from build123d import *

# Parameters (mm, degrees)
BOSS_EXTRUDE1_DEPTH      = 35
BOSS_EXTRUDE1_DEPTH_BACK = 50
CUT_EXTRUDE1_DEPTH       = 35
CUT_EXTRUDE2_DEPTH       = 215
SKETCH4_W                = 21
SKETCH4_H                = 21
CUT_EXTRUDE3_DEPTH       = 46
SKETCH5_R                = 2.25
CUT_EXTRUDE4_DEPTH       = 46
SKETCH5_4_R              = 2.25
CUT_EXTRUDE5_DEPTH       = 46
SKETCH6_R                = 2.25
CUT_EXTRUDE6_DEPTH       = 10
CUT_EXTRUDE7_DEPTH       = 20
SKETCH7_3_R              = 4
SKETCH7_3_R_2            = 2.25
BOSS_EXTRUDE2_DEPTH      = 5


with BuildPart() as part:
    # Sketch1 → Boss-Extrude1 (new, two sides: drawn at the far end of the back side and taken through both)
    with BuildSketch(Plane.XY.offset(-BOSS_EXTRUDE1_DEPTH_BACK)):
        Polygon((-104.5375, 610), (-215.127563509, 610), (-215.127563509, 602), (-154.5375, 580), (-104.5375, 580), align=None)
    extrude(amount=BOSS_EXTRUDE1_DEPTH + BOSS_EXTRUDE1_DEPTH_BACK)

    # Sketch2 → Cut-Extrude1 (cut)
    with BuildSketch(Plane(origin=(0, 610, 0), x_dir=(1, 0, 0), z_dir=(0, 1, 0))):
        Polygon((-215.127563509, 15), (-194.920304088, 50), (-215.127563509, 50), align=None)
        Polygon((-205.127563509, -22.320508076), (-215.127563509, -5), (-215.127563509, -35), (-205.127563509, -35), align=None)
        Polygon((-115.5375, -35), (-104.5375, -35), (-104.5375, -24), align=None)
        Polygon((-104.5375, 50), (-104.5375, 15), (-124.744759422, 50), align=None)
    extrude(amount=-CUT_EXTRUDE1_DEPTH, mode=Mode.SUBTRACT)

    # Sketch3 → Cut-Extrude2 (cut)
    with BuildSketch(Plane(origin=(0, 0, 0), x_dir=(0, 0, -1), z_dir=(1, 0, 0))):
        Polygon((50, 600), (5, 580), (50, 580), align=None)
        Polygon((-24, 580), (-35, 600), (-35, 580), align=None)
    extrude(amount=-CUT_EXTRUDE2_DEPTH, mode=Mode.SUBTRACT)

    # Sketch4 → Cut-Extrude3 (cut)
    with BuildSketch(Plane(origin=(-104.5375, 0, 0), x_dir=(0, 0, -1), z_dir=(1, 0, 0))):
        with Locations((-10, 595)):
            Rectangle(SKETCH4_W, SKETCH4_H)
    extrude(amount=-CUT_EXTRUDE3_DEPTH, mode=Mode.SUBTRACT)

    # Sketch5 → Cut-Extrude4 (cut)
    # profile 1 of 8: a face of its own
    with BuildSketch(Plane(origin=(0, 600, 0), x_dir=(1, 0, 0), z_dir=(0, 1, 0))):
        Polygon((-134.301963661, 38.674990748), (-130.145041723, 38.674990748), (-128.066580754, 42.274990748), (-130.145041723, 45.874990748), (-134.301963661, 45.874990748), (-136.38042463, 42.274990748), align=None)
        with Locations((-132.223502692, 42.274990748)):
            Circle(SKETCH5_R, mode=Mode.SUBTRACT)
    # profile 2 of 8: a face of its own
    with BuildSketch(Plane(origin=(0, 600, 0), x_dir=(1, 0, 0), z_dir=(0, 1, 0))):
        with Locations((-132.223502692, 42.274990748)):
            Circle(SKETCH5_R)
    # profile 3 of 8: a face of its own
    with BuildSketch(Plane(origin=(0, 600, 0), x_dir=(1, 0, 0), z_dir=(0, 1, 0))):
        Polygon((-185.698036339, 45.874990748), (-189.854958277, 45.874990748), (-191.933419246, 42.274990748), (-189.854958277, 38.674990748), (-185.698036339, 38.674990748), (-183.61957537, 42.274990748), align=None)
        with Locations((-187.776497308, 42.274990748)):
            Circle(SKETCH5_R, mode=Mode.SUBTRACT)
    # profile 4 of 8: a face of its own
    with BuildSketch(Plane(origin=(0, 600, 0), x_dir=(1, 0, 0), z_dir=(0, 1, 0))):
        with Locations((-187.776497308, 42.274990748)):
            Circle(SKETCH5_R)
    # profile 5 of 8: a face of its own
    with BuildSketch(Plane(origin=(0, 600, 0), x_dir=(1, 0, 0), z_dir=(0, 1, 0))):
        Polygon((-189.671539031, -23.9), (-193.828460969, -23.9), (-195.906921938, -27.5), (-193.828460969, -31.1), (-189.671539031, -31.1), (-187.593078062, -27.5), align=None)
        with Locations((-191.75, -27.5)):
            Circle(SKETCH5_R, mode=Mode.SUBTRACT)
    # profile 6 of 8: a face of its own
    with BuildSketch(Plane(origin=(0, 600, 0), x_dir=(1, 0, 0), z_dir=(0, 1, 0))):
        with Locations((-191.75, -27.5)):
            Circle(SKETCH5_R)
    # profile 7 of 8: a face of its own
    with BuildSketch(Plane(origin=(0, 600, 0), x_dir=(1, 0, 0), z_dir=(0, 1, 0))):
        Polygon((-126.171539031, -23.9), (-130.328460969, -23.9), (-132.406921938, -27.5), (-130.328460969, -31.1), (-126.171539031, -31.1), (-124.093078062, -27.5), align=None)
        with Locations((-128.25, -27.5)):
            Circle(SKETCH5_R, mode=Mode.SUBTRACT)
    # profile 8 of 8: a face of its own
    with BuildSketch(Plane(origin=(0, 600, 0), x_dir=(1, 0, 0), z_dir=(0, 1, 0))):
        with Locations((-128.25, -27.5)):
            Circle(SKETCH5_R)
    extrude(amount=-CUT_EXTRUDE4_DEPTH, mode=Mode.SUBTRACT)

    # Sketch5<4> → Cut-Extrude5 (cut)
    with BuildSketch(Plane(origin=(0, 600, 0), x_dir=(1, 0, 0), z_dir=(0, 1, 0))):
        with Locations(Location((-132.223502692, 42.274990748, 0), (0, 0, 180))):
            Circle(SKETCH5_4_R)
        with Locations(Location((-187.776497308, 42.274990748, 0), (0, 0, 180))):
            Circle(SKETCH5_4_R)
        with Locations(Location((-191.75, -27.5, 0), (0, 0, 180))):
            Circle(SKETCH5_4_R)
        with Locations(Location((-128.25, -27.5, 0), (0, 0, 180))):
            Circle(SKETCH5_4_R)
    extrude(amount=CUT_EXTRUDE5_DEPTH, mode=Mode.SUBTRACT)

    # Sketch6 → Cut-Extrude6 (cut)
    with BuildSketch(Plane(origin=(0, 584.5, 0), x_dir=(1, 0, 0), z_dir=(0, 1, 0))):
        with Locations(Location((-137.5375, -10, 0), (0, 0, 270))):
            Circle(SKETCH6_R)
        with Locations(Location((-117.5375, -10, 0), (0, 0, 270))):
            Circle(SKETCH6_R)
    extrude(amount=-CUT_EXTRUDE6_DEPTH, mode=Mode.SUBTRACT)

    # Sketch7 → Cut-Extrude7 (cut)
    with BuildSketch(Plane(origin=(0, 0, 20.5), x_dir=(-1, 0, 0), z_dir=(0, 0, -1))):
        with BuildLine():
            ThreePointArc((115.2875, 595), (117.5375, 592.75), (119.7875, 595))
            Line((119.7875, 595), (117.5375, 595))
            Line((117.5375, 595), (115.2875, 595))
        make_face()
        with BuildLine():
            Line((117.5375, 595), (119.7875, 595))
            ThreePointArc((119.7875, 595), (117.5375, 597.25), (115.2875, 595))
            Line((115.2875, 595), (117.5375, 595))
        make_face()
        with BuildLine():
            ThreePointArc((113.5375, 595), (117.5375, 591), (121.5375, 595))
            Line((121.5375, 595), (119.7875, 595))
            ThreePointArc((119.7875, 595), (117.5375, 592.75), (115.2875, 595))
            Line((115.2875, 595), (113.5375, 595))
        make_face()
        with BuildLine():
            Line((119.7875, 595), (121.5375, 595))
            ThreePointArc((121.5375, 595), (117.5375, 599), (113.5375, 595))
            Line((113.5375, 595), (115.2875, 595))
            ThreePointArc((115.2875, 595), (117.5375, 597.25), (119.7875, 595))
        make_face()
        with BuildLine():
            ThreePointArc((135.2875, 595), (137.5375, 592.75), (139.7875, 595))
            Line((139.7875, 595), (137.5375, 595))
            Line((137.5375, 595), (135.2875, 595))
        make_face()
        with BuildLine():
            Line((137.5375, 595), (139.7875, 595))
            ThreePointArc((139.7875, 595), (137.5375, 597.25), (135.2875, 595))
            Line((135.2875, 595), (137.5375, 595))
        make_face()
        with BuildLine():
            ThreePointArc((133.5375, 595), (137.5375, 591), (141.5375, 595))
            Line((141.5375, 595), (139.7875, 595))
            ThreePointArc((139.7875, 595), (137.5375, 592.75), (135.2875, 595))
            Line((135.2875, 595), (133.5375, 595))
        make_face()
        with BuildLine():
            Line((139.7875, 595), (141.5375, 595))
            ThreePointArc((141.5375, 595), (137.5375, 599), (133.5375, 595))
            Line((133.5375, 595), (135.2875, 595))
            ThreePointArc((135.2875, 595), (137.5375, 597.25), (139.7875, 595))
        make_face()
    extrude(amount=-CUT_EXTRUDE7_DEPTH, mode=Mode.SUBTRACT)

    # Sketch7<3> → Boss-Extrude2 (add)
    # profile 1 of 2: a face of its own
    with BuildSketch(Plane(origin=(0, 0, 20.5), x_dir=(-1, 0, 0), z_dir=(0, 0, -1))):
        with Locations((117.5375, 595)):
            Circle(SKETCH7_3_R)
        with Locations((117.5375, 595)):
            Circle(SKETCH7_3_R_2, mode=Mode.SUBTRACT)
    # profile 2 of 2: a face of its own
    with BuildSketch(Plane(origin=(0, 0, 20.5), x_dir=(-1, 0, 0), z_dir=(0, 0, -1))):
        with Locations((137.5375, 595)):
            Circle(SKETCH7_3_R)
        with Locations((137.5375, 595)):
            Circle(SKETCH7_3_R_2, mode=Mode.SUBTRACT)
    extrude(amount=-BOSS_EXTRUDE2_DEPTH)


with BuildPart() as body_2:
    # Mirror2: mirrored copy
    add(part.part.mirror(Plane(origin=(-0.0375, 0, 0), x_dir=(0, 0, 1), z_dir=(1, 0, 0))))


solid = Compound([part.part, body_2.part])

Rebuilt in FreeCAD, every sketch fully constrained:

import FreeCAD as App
import Part
import Sketcher

V = App.Vector
Q = App.Units.Quantity


def add_polygon(sketch, points):
    """Adds a closed chain of lines whose ends are joined by coincident constraints."""
    first, n = sketch.GeometryCount, len(points)
    for a, b in zip(points, points[1:] + points[:1]):
        sketch.addGeometry(Part.LineSegment(App.Vector(*a, 0), App.Vector(*b, 0)), False)
    for i in range(n):
        sketch.addConstraint(Sketcher.Constraint("Coincident", first + i, 2, first + (i + 1) % n, 1))

doc = App.newDocument("Part")
body = doc.addObject("PartDesign::Body", "Body")

# Sketch on XY plane
sketch1 = body.newObject("Sketcher::SketchObject", "Sketch")
sketch1.AttachmentSupport = (doc.getObject("XY_Plane"), [""])
sketch1.MapMode = "FlatFace"
add_polygon(sketch1, [(-105, 610), (-215, 610), (-215, 602), (-155, 580), (-105, 580)])  # lines 0-4
sketch1.addConstraint(Sketcher.Constraint("Horizontal", 0))
sketch1.addConstraint(Sketcher.Constraint("Vertical", 1))
sketch1.addConstraint(Sketcher.Constraint("Horizontal", 3))
sketch1.addConstraint(Sketcher.Constraint("Vertical", 4))
sketch1.addConstraint(Sketcher.Constraint("DistanceX", 3, 1, 3, 2, Q("50 mm")))
sketch1.addConstraint(Sketcher.Constraint("DistanceY", 1, 2, 1, 1, Q("8 mm")))
sketch1.addConstraint(Sketcher.Constraint("DistanceY", 4, 1, 4, 2, Q("30 mm")))
sketch1.addConstraint(Sketcher.Constraint("DistanceY", -1, 1, 0, 2, Q("610 mm")))
sketch1.addConstraint(Sketcher.Constraint("DistanceX", 2, 2, -1, 1, Q("154.5375 mm")))
sketch1.addConstraint(Sketcher.Constraint("DistanceX", 0, 2, 0, 1, Q("110.590064 mm")))
pad1 = body.newObject("PartDesign::Pad", "Pad")
pad1.Profile = sketch1
pad1.Type = "TwoLengths"
pad1.Length = 35
pad1.Length2 = 50

# Sketch on XZ plane
sketch2 = body.newObject("Sketcher::SketchObject", "Sketch001")
sketch2.AttachmentSupport = (doc.getObject("XZ_Plane"), [""])
sketch2.MapMode = "FlatFace"
sketch2.AttachmentOffset = App.Placement(V(0, 0, -610), App.Rotation())
add_polygon(sketch2, [(-215, -15), (-195, -50), (-215, -50)])  # lines 0-2
add_polygon(sketch2, [(-205, 22), (-215, 5), (-215, 35), (-205, 35)])  # lines 3-6
add_polygon(sketch2, [(-116, 35), (-105, 35), (-105, 24)])  # lines 7-9
add_polygon(sketch2, [(-105, -15), (-105, -50), (-125, -50)])  # lines 10-12
sketch2.addConstraint(Sketcher.Constraint("Horizontal", 1))
sketch2.addConstraint(Sketcher.Constraint("Vertical", 2))
sketch2.addConstraint(Sketcher.Constraint("Vertical", 4))
sketch2.addConstraint(Sketcher.Constraint("Horizontal", 5))
sketch2.addConstraint(Sketcher.Constraint("Vertical", 6))
sketch2.addConstraint(Sketcher.Constraint("Horizontal", 7))
sketch2.addConstraint(Sketcher.Constraint("Vertical", 8))
sketch2.addConstraint(Sketcher.Constraint("Vertical", 10))
sketch2.addConstraint(Sketcher.Constraint("Horizontal", 11))
sketch2.addConstraint(Sketcher.Constraint("Parallel", 3, 12))
sketch2.addConstraint(Sketcher.Constraint("Horizontal", 5, 2, 7, 2))
sketch2.addConstraint(Sketcher.Constraint("Horizontal", 1, 2, 10, 2))
sketch2.addConstraint(Sketcher.Constraint("Horizontal", 2, 2, 12, 2))
sketch2.addConstraint(Sketcher.Constraint("Vertical", 2, 2, 3, 2))
sketch2.addConstraint(Sketcher.Constraint("Vertical", 8, 2, 10, 2))
sketch2.addConstraint(Sketcher.Constraint("Equal", 1, 11))
sketch2.addConstraint(Sketcher.Constraint("Equal", 7, 8))
sketch2.addConstraint(Sketcher.Constraint("DistanceX", 5, 1, 5, 2, Q("10 mm")))
sketch2.addConstraint(Sketcher.Constraint("DistanceX", 7, 1, 7, 2, Q("11 mm")))
sketch2.addConstraint(Sketcher.Constraint("DistanceY", 2, 1, 2, 2, Q("35 mm")))
sketch2.addConstraint(Sketcher.Constraint("DistanceY", 4, 1, 4, 2, Q("30 mm")))
sketch2.addConstraint(Sketcher.Constraint("Angle", 0, Q("-60 deg")))
sketch2.addConstraint(Sketcher.Constraint("DistanceY", 0, 2, -1, 1, Q("50 mm")))
sketch2.addConstraint(Sketcher.Constraint("DistanceY", -1, 1, 3, 2, Q("5 mm")))
sketch2.addConstraint(Sketcher.Constraint("DistanceX", 7, 2, -1, 1, Q("104.5375 mm")))
sketch2.addConstraint(Sketcher.Constraint("DistanceX", 0, 2, -1, 1, Q("194.920304 mm")))
pocket1 = body.newObject("PartDesign::Pocket", "Pocket")
pocket1.Profile = sketch2
pocket1.Length = 35
pocket1.Reversed = True

# Sketch on YZ plane
sketch3 = body.newObject("Sketcher::SketchObject", "Sketch002")
sketch3.AttachmentSupport = (doc.getObject("YZ_Plane"), [""])
sketch3.MapMode = "FlatFace"
add_polygon(sketch3, [(600, -50), (580, -5), (580, -50)])  # lines 0-2
add_polygon(sketch3, [(580, 24), (600, 35), (580, 35)])  # lines 3-5
sketch3.addConstraint(Sketcher.Constraint("Vertical", 1))
sketch3.addConstraint(Sketcher.Constraint("Horizontal", 2))
sketch3.addConstraint(Sketcher.Constraint("Horizontal", 4))
sketch3.addConstraint(Sketcher.Constraint("Vertical", 5))
sketch3.addConstraint(Sketcher.Constraint("Vertical", 2, 2, 3, 2))
sketch3.addConstraint(Sketcher.Constraint("Vertical", 1, 2, 4, 2))
sketch3.addConstraint(Sketcher.Constraint("DistanceX", 2, 1, 2, 2, Q("20 mm")))
sketch3.addConstraint(Sketcher.Constraint("DistanceY", 1, 2, 1, 1, Q("45 mm")))
sketch3.addConstraint(Sketcher.Constraint("DistanceY", 5, 2, 5, 1, Q("11 mm")))
sketch3.addConstraint(Sketcher.Constraint("DistanceX", -1, 1, 0, 2, Q("580 mm")))
sketch3.addConstraint(Sketcher.Constraint("DistanceY", 0, 2, -1, 1, Q("5 mm")))
sketch3.addConstraint(Sketcher.Constraint("DistanceY", -1, 1, 3, 2, Q("35 mm")))
pocket2 = body.newObject("PartDesign::Pocket", "Pocket001")
pocket2.Profile = sketch3
pocket2.Length = 215

# Sketch on YZ plane
sketch4 = body.newObject("Sketcher::SketchObject", "Sketch003")
sketch4.AttachmentSupport = (doc.getObject("YZ_Plane"), [""])
sketch4.MapMode = "FlatFace"
sketch4.AttachmentOffset = App.Placement(V(0, 0, -104.5375), App.Rotation())
add_polygon(sketch4, [(606, 20), (584, 20), (584, 0), (606, 0)])  # lines 0-3
sketch4.addConstraint(Sketcher.Constraint("Horizontal", 0))
sketch4.addConstraint(Sketcher.Constraint("Vertical", 1))
sketch4.addConstraint(Sketcher.Constraint("Horizontal", 2))
sketch4.addConstraint(Sketcher.Constraint("Vertical", 3))
sketch4.addConstraint(Sketcher.Constraint("Equal", 2, 1))
sketch4.addConstraint(Sketcher.Constraint("DistanceX", 0, 2, 0, 1, Q("21 mm")))
sketch4.addConstraint(Sketcher.Constraint("DistanceX", -1, 1, 0, 2, Q("584.5 mm")))
sketch4.addConstraint(Sketcher.Constraint("DistanceY", -1, 1, 0, 2, Q("20.5 mm")))
pocket3 = body.newObject("PartDesign::Pocket", "Pocket002")
pocket3.Profile = sketch4
pocket3.Length = 46

# Sketch on XZ plane
sketch5 = body.newObject("Sketcher::SketchObject", "Sketch004")
sketch5.AttachmentSupport = (doc.getObject("XZ_Plane"), [""])
sketch5.MapMode = "FlatFace"
sketch5.AttachmentOffset = App.Placement(V(0, 0, -600), App.Rotation())
add_polygon(sketch5, [(-134.3, -38.7), (-130.1, -38.7), (-128.1, -42.3), (-130.1, -45.9), (-134.3, -45.9), (-136.4, -42.3)])  # lines 0-5
add_polygon(sketch5, [(-185.7, -45.9), (-189.9, -45.9), (-191.9, -42.3), (-189.9, -38.7), (-185.7, -38.7), (-183.6, -42.3)])  # lines 6-11
add_polygon(sketch5, [(-189.7, 23.9), (-193.8, 23.9), (-195.9, 27.5), (-193.8, 31.1), (-189.7, 31.1), (-187.6, 27.5)])  # lines 12-17
add_polygon(sketch5, [(-126.2, 23.9), (-130.3, 23.9), (-132.4, 27.5), (-130.3, 31.1), (-126.2, 31.1), (-124.1, 27.5)])  # lines 18-23
sketch5.addConstraint(Sketcher.Constraint("Horizontal", 0))
sketch5.addConstraint(Sketcher.Constraint("Horizontal", 3))
sketch5.addConstraint(Sketcher.Constraint("Horizontal", 6))
sketch5.addConstraint(Sketcher.Constraint("Horizontal", 9))
sketch5.addConstraint(Sketcher.Constraint("Horizontal", 12))
sketch5.addConstraint(Sketcher.Constraint("Horizontal", 15))
sketch5.addConstraint(Sketcher.Constraint("Horizontal", 18))
sketch5.addConstraint(Sketcher.Constraint("Horizontal", 21))
sketch5.addConstraint(Sketcher.Constraint("Parallel", 1, 4))
sketch5.addConstraint(Sketcher.Constraint("Parallel", 2, 5))
sketch5.addConstraint(Sketcher.Constraint("Parallel", 4, 7))
sketch5.addConstraint(Sketcher.Constraint("Parallel", 5, 8))
sketch5.addConstraint(Sketcher.Constraint("Parallel", 7, 10))
sketch5.addConstraint(Sketcher.Constraint("Parallel", 8, 11))
sketch5.addConstraint(Sketcher.Constraint("Parallel", 10, 13))
sketch5.addConstraint(Sketcher.Constraint("Parallel", 11, 14))
sketch5.addConstraint(Sketcher.Constraint("Parallel", 13, 16))
sketch5.addConstraint(Sketcher.Constraint("Parallel", 14, 17))
sketch5.addConstraint(Sketcher.Constraint("Parallel", 16, 19))
sketch5.addConstraint(Sketcher.Constraint("Parallel", 17, 20))
sketch5.addConstraint(Sketcher.Constraint("Parallel", 19, 22))
sketch5.addConstraint(Sketcher.Constraint("Parallel", 20, 23))
sketch5.addConstraint(Sketcher.Constraint("Horizontal", 1, 2, 4, 2))
sketch5.addConstraint(Sketcher.Constraint("Horizontal", 3, 2, 6, 2))
sketch5.addConstraint(Sketcher.Constraint("Horizontal", 4, 2, 7, 2))
sketch5.addConstraint(Sketcher.Constraint("Horizontal", 5, 2, 8, 2))
sketch5.addConstraint(Sketcher.Constraint("Horizontal", 7, 2, 10, 2))
sketch5.addConstraint(Sketcher.Constraint("Horizontal", 13, 2, 16, 2))
sketch5.addConstraint(Sketcher.Constraint("Horizontal", 17, 2, 18, 2))
sketch5.addConstraint(Sketcher.Constraint("Horizontal", 16, 2, 19, 2))
sketch5.addConstraint(Sketcher.Constraint("Horizontal", 15, 2, 20, 2))
sketch5.addConstraint(Sketcher.Constraint("Horizontal", 19, 2, 22, 2))
sketch5.addConstraint(Sketcher.Constraint("Vertical", 0, 2, 2, 2))
sketch5.addConstraint(Sketcher.Constraint("Vertical", 3, 2, 5, 2))
sketch5.addConstraint(Sketcher.Constraint("Vertical", 12, 2, 14, 2))
sketch5.addConstraint(Sketcher.Constraint("Equal", 3, 6))
sketch5.addConstraint(Sketcher.Constraint("Equal", 9, 12))
sketch5.addConstraint(Sketcher.Constraint("Equal", 15, 18))
sketch5.addConstraint(Sketcher.Constraint("Equal", 11, 13))
sketch5.addConstraint(Sketcher.Constraint("Angle", 1, Q("-60 deg")))
sketch5.addConstraint(Sketcher.Constraint("DistanceY", -1, 1, 12, 2, Q("23.9 mm")))
sketch5.addConstraint(Sketcher.Constraint("DistanceY", -1, 1, 13, 2, Q("27.5 mm")))
sketch5.addConstraint(Sketcher.Constraint("DistanceX", 15, 2, 21, 2, Q("63.5 mm")))
sketch5.addConstraint(Sketcher.Constraint("DistanceX", 0, 1, 0, 2, Q("4.156922 mm")))
sketch5.addConstraint(Sketcher.Constraint("DistanceX", 0, 2, -1, 1, Q("130.145042 mm")))
sketch5.addConstraint(Sketcher.Constraint("DistanceY", 0, 2, -1, 1, Q("38.674991 mm")))
sketch5.addConstraint(Sketcher.Constraint("DistanceX", 6, 2, -1, 1, Q("189.854958 mm")))
sketch5.addConstraint(Sketcher.Constraint("DistanceX", 12, 2, -1, 1, Q("193.828461 mm")))
pocket4 = body.newObject("PartDesign::Pocket", "Pocket003")
pocket4.Profile = sketch5
pocket4.Length = 46
pocket4.Reversed = True

# Sketch on XZ plane
sketch6 = body.newObject("Sketcher::SketchObject", "Sketch005")
sketch6.AttachmentSupport = (doc.getObject("XZ_Plane"), [""])
sketch6.MapMode = "FlatFace"
sketch6.AttachmentOffset = App.Placement(V(0, 0, -600), App.Rotation())
sketch6.addGeometry(Part.Circle(V(-132.2, -42.3, 0), V(0, 0, 1), 2.2), False)
sketch6.addGeometry(Part.Circle(V(-187.8, -42.3, 0), V(0, 0, 1), 2.2), False)
sketch6.addGeometry(Part.Circle(V(-191.8, 27.5, 0), V(0, 0, 1), 2.2), False)
sketch6.addGeometry(Part.Circle(V(-128.2, 27.5, 0), V(0, 0, 1), 2.2), False)
sketch6.addConstraint(Sketcher.Constraint("Equal", 0, 1))
sketch6.addConstraint(Sketcher.Constraint("Equal", 1, 2))
sketch6.addConstraint(Sketcher.Constraint("Equal", 2, 3))
sketch6.addConstraint(Sketcher.Constraint("Horizontal", 0, 3, 1, 3))
sketch6.addConstraint(Sketcher.Constraint("Horizontal", 2, 3, 3, 3))
sketch6.addConstraint(Sketcher.Constraint("Diameter", 0, Q("4.5 mm")))
sketch6.addConstraint(Sketcher.Constraint("DistanceY", -1, 1, 2, 3, Q("27.5 mm")))
sketch6.addConstraint(Sketcher.Constraint("DistanceX", 2, 3, 3, 3, Q("63.5 mm")))
sketch6.addConstraint(Sketcher.Constraint("DistanceX", 2, 3, -1, 1, Q("191.75 mm")))
sketch6.addConstraint(Sketcher.Constraint("DistanceY", 0, 3, -1, 1, Q("42.274991 mm")))
sketch6.addConstraint(Sketcher.Constraint("DistanceX", 0, 3, -1, 1, Q("132.223503 mm")))
sketch6.addConstraint(Sketcher.Constraint("DistanceX", 1, 3, -1, 1, Q("187.776497 mm")))
pocket5 = body.newObject("PartDesign::Pocket", "Pocket004")
pocket5.Profile = sketch6
pocket5.Length = 46

# Sketch on XZ plane
sketch7 = body.newObject("Sketcher::SketchObject", "Sketch006")
sketch7.AttachmentSupport = (doc.getObject("XZ_Plane"), [""])
sketch7.MapMode = "FlatFace"
sketch7.AttachmentOffset = App.Placement(V(0, 0, -584.5), App.Rotation())
sketch7.addGeometry(Part.Circle(V(-137.5, 10, 0), V(0, 0, 1), 2.2), False)
sketch7.addGeometry(Part.Circle(V(-117.5, 10, 0), V(0, 0, 1), 2.2), False)
sketch7.addConstraint(Sketcher.Constraint("Equal", 0, 1))
sketch7.addConstraint(Sketcher.Constraint("Horizontal", 0, 3, 1, 3))
sketch7.addConstraint(Sketcher.Constraint("Diameter", 0, Q("4.5 mm")))
sketch7.addConstraint(Sketcher.Constraint("DistanceY", -1, 1, 0, 3, Q("10 mm")))
sketch7.addConstraint(Sketcher.Constraint("DistanceX", 0, 3, 1, 3, Q("20 mm")))
sketch7.addConstraint(Sketcher.Constraint("DistanceX", 0, 3, -1, 1, Q("137.5375 mm")))
pocket6 = body.newObject("PartDesign::Pocket", "Pocket005")
pocket6.Profile = sketch7
pocket6.Length = 10
pocket6.Reversed = True

# Sketch on XY plane
sketch8 = body.newObject("Sketcher::SketchObject", "Sketch007")
sketch8.AttachmentSupport = (doc.getObject("XY_Plane"), [""])
sketch8.MapMode = "FlatFace"
sketch8.AttachmentOffset = App.Placement(V(0, 0, 20.5), App.Rotation())
sketch8.addGeometry(Part.Circle(V(-117.5, 595, 0), V(0, 0, 1), 4), False)
sketch8.addGeometry(Part.Circle(V(-137.5, 595, 0), V(0, 0, 1), 4), False)
sketch8.addConstraint(Sketcher.Constraint("Equal", 0, 1))
sketch8.addConstraint(Sketcher.Constraint("Horizontal", 0, 3, 1, 3))
sketch8.addConstraint(Sketcher.Constraint("Diameter", 0, Q("8 mm")))
sketch8.addConstraint(Sketcher.Constraint("DistanceY", -1, 1, 0, 3, Q("595 mm")))
sketch8.addConstraint(Sketcher.Constraint("DistanceX", 1, 3, 0, 3, Q("20 mm")))
sketch8.addConstraint(Sketcher.Constraint("DistanceX", 0, 3, -1, 1, Q("117.5375 mm")))
pocket7 = body.newObject("PartDesign::Pocket", "Pocket006")
pocket7.Profile = sketch8
pocket7.Length = 20
pocket7.Reversed = True

# Sketch on XY plane
sketch9 = body.newObject("Sketcher::SketchObject", "Sketch008")
sketch9.AttachmentSupport = (doc.getObject("XY_Plane"), [""])
sketch9.MapMode = "FlatFace"
sketch9.AttachmentOffset = App.Placement(V(0, 0, 20.5), App.Rotation())
sketch9.addGeometry(Part.Circle(V(-117.5, 595, 0), V(0, 0, 1), 4), False)
sketch9.addGeometry(Part.Circle(V(-117.5, 595, 0), V(0, 0, 1), 2.2), False)
sketch9.addGeometry(Part.Circle(V(-137.5, 595, 0), V(0, 0, 1), 4), False)
sketch9.addGeometry(Part.Circle(V(-137.5, 595, 0), V(0, 0, 1), 2.2), False)
sketch9.addConstraint(Sketcher.Constraint("Coincident", 1, 3, 0, 3))
sketch9.addConstraint(Sketcher.Constraint("Coincident", 3, 3, 2, 3))
sketch9.addConstraint(Sketcher.Constraint("Equal", 0, 2))
sketch9.addConstraint(Sketcher.Constraint("Equal", 1, 3))
sketch9.addConstraint(Sketcher.Constraint("Horizontal", 1, 3, 2, 3))
sketch9.addConstraint(Sketcher.Constraint("Diameter", 0, Q("8 mm")))
sketch9.addConstraint(Sketcher.Constraint("Diameter", 1, Q("4.5 mm")))
sketch9.addConstraint(Sketcher.Constraint("DistanceY", -1, 1, 0, 3, Q("595 mm")))
sketch9.addConstraint(Sketcher.Constraint("DistanceX", 2, 3, 0, 3, Q("20 mm")))
sketch9.addConstraint(Sketcher.Constraint("DistanceX", 0, 3, -1, 1, Q("117.5375 mm")))
pad2 = body.newObject("PartDesign::Pad", "Pad001")
pad2.Profile = sketch9
pad2.Length = 5
body2 = doc.addObject("PartDesign::Body", "Body001")
doc.recompute()

mirroring = doc.addObject("Part::Mirroring", "Mirroring")
mirroring.Source = body
mirroring.Base = V(-0.0375, 0, 0)
mirroring.Normal = V(1, 0, 0)
body2.BaseFeature = mirroring
doc.recompute()
mirroring.Visibility = False

doc.recompute()
